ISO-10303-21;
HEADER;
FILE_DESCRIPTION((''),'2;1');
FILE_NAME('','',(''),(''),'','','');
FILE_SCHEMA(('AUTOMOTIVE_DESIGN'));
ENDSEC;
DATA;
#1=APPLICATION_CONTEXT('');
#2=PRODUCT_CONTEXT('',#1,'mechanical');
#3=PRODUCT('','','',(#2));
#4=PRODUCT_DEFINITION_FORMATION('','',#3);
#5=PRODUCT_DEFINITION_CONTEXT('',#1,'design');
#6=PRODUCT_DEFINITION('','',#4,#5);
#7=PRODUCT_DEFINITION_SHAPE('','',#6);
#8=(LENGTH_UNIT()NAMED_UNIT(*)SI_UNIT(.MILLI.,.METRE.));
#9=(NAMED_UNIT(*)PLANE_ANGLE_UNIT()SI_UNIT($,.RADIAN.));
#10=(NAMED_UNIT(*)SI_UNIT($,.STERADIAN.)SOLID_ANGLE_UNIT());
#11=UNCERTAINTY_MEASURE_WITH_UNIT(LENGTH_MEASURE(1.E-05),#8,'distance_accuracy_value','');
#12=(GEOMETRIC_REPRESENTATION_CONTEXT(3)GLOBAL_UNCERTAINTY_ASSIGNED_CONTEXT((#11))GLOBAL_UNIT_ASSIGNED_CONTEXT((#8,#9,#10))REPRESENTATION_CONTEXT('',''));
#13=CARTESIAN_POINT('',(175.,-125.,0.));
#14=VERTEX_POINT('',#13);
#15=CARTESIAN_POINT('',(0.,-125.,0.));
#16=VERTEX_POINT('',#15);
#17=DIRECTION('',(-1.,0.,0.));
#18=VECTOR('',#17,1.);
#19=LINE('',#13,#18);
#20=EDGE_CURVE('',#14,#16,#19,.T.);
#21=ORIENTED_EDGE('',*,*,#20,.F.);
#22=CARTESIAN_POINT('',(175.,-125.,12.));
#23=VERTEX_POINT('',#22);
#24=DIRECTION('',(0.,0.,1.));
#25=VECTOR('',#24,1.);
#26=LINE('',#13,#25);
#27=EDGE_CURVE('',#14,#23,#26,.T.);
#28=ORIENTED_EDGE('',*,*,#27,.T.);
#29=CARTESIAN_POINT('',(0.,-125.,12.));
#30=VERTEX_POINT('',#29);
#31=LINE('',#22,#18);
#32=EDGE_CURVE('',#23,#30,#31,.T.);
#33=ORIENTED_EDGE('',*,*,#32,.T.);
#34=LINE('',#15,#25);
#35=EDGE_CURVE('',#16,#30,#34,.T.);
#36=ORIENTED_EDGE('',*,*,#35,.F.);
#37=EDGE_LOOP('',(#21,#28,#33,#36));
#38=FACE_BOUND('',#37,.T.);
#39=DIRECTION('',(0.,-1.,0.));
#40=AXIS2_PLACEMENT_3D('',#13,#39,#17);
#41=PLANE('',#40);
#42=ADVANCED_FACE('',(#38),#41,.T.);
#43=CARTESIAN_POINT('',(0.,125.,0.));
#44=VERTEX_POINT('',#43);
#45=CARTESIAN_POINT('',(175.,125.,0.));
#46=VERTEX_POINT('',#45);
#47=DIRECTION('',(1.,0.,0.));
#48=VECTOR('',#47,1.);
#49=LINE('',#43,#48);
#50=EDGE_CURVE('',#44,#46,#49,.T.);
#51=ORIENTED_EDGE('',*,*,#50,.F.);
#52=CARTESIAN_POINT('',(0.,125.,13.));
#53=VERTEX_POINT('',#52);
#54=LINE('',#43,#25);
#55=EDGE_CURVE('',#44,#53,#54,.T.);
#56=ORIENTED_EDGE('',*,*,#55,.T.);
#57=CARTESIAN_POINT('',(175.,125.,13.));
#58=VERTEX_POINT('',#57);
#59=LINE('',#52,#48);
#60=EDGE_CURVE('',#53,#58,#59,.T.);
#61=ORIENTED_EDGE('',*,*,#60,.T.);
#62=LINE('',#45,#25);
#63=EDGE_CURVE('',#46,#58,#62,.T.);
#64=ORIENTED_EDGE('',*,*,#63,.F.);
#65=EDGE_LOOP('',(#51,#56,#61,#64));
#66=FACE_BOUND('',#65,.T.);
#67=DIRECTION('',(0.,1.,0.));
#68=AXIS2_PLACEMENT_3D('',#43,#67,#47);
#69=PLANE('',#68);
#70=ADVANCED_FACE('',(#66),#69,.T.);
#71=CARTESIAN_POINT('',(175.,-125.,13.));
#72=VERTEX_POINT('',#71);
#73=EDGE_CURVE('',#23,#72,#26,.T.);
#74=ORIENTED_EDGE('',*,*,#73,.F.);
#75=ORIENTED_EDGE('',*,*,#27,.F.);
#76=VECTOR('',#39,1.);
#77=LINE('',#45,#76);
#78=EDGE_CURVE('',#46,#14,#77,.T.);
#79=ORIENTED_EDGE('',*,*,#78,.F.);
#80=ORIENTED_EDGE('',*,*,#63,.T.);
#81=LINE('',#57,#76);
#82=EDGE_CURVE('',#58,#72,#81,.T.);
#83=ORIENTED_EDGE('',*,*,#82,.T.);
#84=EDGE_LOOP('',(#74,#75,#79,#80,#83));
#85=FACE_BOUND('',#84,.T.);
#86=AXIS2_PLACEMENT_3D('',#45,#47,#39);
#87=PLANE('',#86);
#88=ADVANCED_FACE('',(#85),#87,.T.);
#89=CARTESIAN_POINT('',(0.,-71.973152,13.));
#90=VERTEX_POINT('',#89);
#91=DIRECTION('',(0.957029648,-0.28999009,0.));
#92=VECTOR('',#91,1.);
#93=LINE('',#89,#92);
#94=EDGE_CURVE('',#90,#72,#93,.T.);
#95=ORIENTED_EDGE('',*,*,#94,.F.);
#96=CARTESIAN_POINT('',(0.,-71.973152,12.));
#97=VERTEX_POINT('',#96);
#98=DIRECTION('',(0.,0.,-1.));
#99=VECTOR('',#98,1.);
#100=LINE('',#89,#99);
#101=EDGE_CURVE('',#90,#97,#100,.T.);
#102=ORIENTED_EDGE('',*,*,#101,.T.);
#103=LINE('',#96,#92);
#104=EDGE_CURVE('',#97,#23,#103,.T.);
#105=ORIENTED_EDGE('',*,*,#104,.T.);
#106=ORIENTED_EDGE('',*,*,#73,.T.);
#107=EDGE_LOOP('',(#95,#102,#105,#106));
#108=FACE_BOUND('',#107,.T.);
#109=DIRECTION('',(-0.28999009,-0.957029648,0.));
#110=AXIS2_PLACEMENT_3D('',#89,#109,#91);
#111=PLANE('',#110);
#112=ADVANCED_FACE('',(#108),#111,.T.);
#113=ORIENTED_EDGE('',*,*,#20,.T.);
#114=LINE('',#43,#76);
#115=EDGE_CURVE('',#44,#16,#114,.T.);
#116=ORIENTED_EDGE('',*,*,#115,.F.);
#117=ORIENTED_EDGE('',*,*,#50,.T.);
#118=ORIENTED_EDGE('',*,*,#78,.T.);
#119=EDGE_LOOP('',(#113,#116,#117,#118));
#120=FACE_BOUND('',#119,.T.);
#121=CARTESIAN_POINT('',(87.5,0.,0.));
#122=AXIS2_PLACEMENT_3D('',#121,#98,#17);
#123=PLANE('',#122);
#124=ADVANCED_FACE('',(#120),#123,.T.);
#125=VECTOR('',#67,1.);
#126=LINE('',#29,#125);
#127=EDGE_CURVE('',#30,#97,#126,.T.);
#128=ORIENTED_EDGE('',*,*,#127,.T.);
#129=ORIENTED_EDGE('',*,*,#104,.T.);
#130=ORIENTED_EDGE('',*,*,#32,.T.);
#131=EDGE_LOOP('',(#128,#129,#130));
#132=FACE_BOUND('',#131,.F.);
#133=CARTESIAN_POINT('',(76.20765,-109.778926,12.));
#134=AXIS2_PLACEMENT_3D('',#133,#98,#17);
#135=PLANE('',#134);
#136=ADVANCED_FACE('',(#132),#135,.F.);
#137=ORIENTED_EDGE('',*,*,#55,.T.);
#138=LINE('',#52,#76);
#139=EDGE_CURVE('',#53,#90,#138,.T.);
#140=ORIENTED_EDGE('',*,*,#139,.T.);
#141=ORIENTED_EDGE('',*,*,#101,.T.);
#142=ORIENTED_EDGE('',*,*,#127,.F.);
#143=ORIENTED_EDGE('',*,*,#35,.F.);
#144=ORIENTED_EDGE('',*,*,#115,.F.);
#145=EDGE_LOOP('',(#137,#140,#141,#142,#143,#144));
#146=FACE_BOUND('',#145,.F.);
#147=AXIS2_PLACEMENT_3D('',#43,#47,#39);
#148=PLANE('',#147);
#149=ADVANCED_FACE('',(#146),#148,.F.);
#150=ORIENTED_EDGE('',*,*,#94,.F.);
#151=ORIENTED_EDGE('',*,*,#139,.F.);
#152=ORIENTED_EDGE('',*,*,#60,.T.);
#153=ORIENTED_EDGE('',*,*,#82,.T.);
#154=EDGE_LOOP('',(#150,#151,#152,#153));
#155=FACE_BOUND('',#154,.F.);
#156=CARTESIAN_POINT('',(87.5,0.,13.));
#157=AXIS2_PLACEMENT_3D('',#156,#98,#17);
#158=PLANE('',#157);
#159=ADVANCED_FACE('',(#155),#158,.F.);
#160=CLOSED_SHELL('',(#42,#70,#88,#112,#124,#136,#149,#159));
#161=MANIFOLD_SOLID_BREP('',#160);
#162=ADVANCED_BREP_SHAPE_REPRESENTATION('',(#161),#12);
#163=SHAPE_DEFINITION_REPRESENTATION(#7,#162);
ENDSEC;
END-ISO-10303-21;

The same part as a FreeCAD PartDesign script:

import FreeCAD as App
import Part
import Sketcher
from FreeCAD import Vector
Q = App.Units.Quantity


def add_polygon(sketch, points):
    """Adds a closed chain of lines whose ends are joined by coincident constraints."""
    first, n = sketch.GeometryCount, len(points)
    for a, b in zip(points, points[1:] + points[:1]):
        sketch.addGeometry(Part.LineSegment(App.Vector(*a, 0), App.Vector(*b, 0)), False)
    for i in range(n):
        sketch.addConstraint(Sketcher.Constraint("Coincident", first + i, 2, first + (i + 1) % n, 1))

doc = App.newDocument("Part")
params = doc.addObject("Spreadsheet::Sheet", "Params")
for row, (alias, value) in enumerate([
    ("sketch1_width", "175 mm"),
    ("sketch1_height", "250 mm"),
    ("pad1_length", "13 mm"),
    ("sketch2_width", "175 mm"),
    ("pocket1_length", "1 mm"),
], start=1):
    params.set(f"A{row}", alias)
    params.set(f"B{row}", "=" + value)
    params.setAlias(f"B{row}", alias)

body = doc.addObject("PartDesign::Body", "Body")

# Sketch on XY plane
sketch1 = body.newObject("Sketcher::SketchObject", "Sketch")
sketch1.AttachmentSupport = (doc.getObject("XY_Plane"), [""])
sketch1.MapMode = "FlatFace"
add_polygon(sketch1, [(0, 125), (0, -125), (175, -125), (175, 125)])  # lines 0-3
sketch1.addConstraint([
    Sketcher.Constraint("Vertical", 0),
    Sketcher.Constraint("Horizontal", 1),
    Sketcher.Constraint("Vertical", 2),
    Sketcher.Constraint("Horizontal", 3),
    Sketcher.Constraint("Symmetric", 0, 2, 3, 2, -1, 1),
    Sketcher.Constraint("DistanceX", 1, 1, 1, 2, Q("175 mm")),
    Sketcher.Constraint("DistanceY", 0, 2, 0, 1, Q("250 mm")),
])
sketch1.setExpression("Constraints[9]", "Params.sketch1_width")
sketch1.setExpression("Constraints[10]", "Params.sketch1_height")
pad1 = body.newObject("PartDesign::Pad", "Pad")
pad1.Profile = sketch1
pad1.setExpression("Length", "Params.pad1_length")

# Sketch on XY plane
sketch2 = body.newObject("Sketcher::SketchObject", "Sketch001")
sketch2.AttachmentSupport = (doc.getObject("XY_Plane"), [""])
sketch2.MapMode = "FlatFace"
sketch2.AttachmentOffset = App.Placement(Vector(0, 0, 13), App.Rotation())
add_polygon(sketch2, [(0, -71.973152), (0, -125), (175, -125)])  # lines 0-2
sketch2.addConstraint([
    Sketcher.Constraint("Vertical", 0),
    Sketcher.Constraint("Horizontal", 1),
    Sketcher.Constraint("PointOnObject", 0, 2, -2),
    Sketcher.Constraint("DistanceX", 1, 1, 1, 2, Q("175 mm")),
    Sketcher.Constraint("DistanceY", 0, 2, -1, 1, Q("125 mm")),
    Sketcher.Constraint("Distance", 2, Q("182.857449 mm")),
])
sketch2.setExpression("Constraints[6]", "Params.sketch2_width")
pocket1 = body.newObject("PartDesign::Pocket", "Pocket")
pocket1.Profile = sketch2
pocket1.setExpression("Length", "Params.pocket1_length")

doc.recompute()
